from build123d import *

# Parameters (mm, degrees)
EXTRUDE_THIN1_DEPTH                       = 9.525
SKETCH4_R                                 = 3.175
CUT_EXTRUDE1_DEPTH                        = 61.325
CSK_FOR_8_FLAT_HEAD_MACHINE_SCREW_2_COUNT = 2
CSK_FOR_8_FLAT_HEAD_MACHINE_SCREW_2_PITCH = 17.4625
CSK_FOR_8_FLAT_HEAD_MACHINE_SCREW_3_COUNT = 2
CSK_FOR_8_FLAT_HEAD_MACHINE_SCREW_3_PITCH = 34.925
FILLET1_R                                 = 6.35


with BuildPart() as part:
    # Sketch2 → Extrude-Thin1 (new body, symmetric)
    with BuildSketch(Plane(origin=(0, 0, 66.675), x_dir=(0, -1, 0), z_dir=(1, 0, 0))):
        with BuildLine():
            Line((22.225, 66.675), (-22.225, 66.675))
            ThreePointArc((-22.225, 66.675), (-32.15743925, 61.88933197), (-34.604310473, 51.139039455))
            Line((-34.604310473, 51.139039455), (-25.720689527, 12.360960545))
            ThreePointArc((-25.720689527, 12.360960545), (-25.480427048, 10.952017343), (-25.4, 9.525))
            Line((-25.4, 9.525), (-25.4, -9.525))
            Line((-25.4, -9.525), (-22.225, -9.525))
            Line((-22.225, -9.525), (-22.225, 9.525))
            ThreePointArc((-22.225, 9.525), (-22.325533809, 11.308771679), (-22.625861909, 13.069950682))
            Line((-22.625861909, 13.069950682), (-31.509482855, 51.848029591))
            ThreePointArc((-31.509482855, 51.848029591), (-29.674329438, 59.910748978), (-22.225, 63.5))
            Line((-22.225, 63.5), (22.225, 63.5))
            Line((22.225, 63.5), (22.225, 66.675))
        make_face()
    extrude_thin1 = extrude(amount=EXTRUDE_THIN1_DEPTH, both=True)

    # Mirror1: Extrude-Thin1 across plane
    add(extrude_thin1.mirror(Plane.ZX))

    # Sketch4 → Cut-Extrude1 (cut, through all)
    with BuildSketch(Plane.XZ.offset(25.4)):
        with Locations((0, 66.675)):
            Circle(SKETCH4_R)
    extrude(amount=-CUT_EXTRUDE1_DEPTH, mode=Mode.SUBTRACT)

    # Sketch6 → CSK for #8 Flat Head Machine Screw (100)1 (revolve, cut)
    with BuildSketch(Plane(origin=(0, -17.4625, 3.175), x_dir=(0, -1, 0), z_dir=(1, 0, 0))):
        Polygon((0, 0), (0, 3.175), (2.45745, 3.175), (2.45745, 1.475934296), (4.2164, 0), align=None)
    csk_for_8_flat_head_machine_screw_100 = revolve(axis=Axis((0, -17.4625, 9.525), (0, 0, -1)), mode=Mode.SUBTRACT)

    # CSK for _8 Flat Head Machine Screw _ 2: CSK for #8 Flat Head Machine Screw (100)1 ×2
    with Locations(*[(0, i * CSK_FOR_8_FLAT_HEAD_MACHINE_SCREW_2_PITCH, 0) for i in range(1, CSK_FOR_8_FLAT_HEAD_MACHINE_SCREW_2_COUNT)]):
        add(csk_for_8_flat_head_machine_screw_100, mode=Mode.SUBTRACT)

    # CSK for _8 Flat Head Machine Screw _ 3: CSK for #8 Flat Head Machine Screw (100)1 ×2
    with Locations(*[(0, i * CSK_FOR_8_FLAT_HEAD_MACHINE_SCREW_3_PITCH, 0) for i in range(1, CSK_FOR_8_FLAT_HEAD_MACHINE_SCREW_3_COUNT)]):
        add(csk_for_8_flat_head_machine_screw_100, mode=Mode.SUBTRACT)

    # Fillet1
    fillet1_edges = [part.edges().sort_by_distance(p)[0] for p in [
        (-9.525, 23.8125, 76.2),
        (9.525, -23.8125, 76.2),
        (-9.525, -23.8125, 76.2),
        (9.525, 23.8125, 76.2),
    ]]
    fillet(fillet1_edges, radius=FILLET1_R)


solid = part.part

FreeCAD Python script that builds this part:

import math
import FreeCAD as App
import Part
import Sketcher
Q = App.Units.Quantity


def edges_at(feature, points):
    """Names of the edges that pass closest to the given points."""
    edges = feature.Shape.Edges
    near = lambda p: min(range(len(edges)), key=lambda i: edges[i].distToShape(Part.Vertex(*p))[0])
    return sorted({f"Edge{near(p) + 1}" for p in points})

doc = App.newDocument("Part")
body = doc.addObject("PartDesign::Body", "Body")

# Sketch on YZ plane
sketch1 = doc.addObject("Sketcher::SketchObject", "Sketch")
body.addObject(sketch1)
sketch1.AttachmentSupport = (doc.YZ_Plane, [""])
sketch1.MapMode = "FlatFace"
sketch1.addGeometry([
    Part.LineSegment(App.Vector(-22.2, 0, 0), App.Vector(22.2, 0, 0)),  # 0
    Part.ArcOfCircle(Part.Circle(App.Vector(22.2, 12.7, 0), App.Vector(0, 0, 1), 12.7), math.radians(-90), math.radians(13)),  # 1
    Part.LineSegment(App.Vector(34.6, 15.5, 0), App.Vector(25.7, 54.3, 0)),  # 2
    Part.ArcOfCircle(Part.Circle(App.Vector(38.1, 57.2, 0), App.Vector(0, 0, 1), 12.7), math.radians(-180), math.radians(-167.1)),  # 3
    Part.LineSegment(App.Vector(25.4, 57.1, 0), App.Vector(25.4, 76.2, 0)),  # 4
    Part.LineSegment(App.Vector(25.4, 76.2, 0), App.Vector(22.2, 76.2, 0)),  # 5
    Part.LineSegment(App.Vector(22.2, 76.2, 0), App.Vector(22.2, 57.1, 0)),  # 6
    Part.ArcOfCircle(Part.Circle(App.Vector(38.1, 57.1, 0), App.Vector(0, 0, 1), 15.9), math.radians(180), math.radians(192.9)),  # 7
    Part.LineSegment(App.Vector(22.6, 53.6, 0), App.Vector(31.5, 14.8, 0)),  # 8
    Part.ArcOfCircle(Part.Circle(App.Vector(22.2, 12.7, 0), App.Vector(0, 0, 1), 9.5), math.radians(-90), math.radians(13)),  # 9
    Part.LineSegment(App.Vector(22.2, 3.2, 0), App.Vector(-22.2, 3.2, 0)),  # 10
    Part.LineSegment(App.Vector(-22.2, 3.2, 0), App.Vector(-22.2, 0, 0)),  # 11
], False)
sketch1.addConstraint([
    Sketcher.Constraint("Tangent", 0, 2, 1, 1),
    Sketcher.Constraint("Tangent", 1, 2, 2, 1),
    Sketcher.Constraint("Tangent", 2, 2, 3, 2),
    Sketcher.Constraint("Tangent", 3, 1, 4, 1),
    Sketcher.Constraint("Coincident", 4, 2, 5, 1),
    Sketcher.Constraint("Coincident", 5, 2, 6, 1),
    Sketcher.Constraint("Tangent", 6, 2, 7, 1),
    Sketcher.Constraint("Tangent", 7, 2, 8, 1),
    Sketcher.Constraint("Tangent", 8, 2, 9, 2),
    Sketcher.Constraint("Tangent", 9, 1, 10, 1),
    Sketcher.Constraint("Coincident", 10, 2, 11, 1),
    Sketcher.Constraint("Coincident", 11, 2, 0, 1),
    Sketcher.Constraint("Horizontal", 0),
    Sketcher.Constraint("Vertical", 4),
    Sketcher.Constraint("Horizontal", 5),
    Sketcher.Constraint("Vertical", 6),
    Sketcher.Constraint("Horizontal", 10),
    Sketcher.Constraint("Vertical", 11),
    Sketcher.Constraint("Coincident", 7, 3, 3, 3),
    Sketcher.Constraint("Coincident", 9, 3, 1, 3),
    Sketcher.Constraint("Equal", 1, 3),
    Sketcher.Constraint("Symmetric", 0, 2, 11, 2, -1, 1),
    Sketcher.Constraint("Parallel", 2, 8),
    Sketcher.Constraint("Vertical", 0, 2, 5, 2),
    Sketcher.Constraint("Radius", 1, Q("0.5 in")),
    Sketcher.Constraint("DistanceX", -1, 1, 3, 1, Q("1 in")),
    Sketcher.Constraint("DistanceY", -1, 1, 4, 2, Q("3 in")),
    Sketcher.Constraint("Radius", 7, Q("0.625 in")),
    Sketcher.Constraint("DistanceY", 4, 1, 4, 2, Q("0.75 in")),
])
pad1 = doc.addObject("PartDesign::Pad", "Pad")
body.addObject(pad1)
pad1.Profile = sketch1
pad1.Length = Q("0.75 in")
pad1.Midplane = True
doc.recompute()

mirrored = doc.addObject("PartDesign::Mirrored", "Mirrored")
body.addObject(mirrored)
mirrored.Originals = [pad1]
mirrored.MirrorPlane = (doc.XZ_Plane, [""])
body.Tip = mirrored

# Sketch on XZ plane
sketch2 = doc.addObject("Sketcher::SketchObject", "Sketch001")
body.addObject(sketch2)
sketch2.AttachmentSupport = (doc.XZ_Plane, [""])
sketch2.MapMode = "FlatFace"
sketch2.AttachmentOffset = App.Placement(App.Vector(0, 0, 1 * 25.4), App.Rotation())
sketch2.addGeometry(Part.Circle(App.Vector(0, 66.7, 0), App.Vector(0, 0, 1), 3.2), False)
sketch2.addConstraint([
    Sketcher.Constraint("PointOnObject", 0, 3, -2),
    Sketcher.Constraint("Diameter", 0, Q("0.25 in")),
    Sketcher.Constraint("DistanceY", -1, 1, 0, 3, Q("2.625 in")),
])
pocket1 = doc.addObject("PartDesign::Pocket", "Pocket")
body.addObject(pocket1)
pocket1.Profile = sketch2
pocket1.Type = "ThroughAll"

# Sketch on YZ plane
sketch3 = doc.addObject("Sketcher::SketchObject", "Sketch002")
body.addObject(sketch3)
sketch3.AttachmentSupport = (doc.YZ_Plane, [""])
sketch3.MapMode = "FlatFace"
sketch3.addGeometry([
    Part.LineSegment(App.Vector(-17.5, 0, 0), App.Vector(-17.5, 3.2, 0)),  # 0
    Part.LineSegment(App.Vector(-17.5, 3.2, 0), App.Vector(-21.7, 3.2, 0)),  # 1
    Part.LineSegment(App.Vector(-21.7, 3.2, 0), App.Vector(-19.9, 1.7, 0)),  # 2
    Part.LineSegment(App.Vector(-19.9, 1.7, 0), App.Vector(-19.9, 0, 0)),  # 3
    Part.LineSegment(App.Vector(-19.9, 0, 0), App.Vector(-17.5, 0, 0)),  # 4
], False)
sketch3.addGeometry(Part.LineSegment(App.Vector(-17.5, 3.2, 0), App.Vector(-17.5, 0, 0)), True)  # axis
sketch3.addConstraint([
    Sketcher.Constraint("Coincident", 0, 2, 1, 1),
    Sketcher.Constraint("Coincident", 1, 2, 2, 1),
    Sketcher.Constraint("Coincident", 2, 2, 3, 1),
    Sketcher.Constraint("Coincident", 3, 2, 4, 1),
    Sketcher.Constraint("Coincident", 4, 2, 0, 1),
    Sketcher.Constraint("Vertical", 0),
    Sketcher.Constraint("Horizontal", 1),
    Sketcher.Constraint("Vertical", 3),
    Sketcher.Constraint("Horizontal", 4),
    Sketcher.Constraint("Vertical", 5),
    Sketcher.Constraint("Coincident", 5, 1, 0, 2),
    Sketcher.Constraint("PointOnObject", 3, 2, -1),
    Sketcher.Constraint("PointOnObject", 5, 2, -1),
    Sketcher.Constraint("Angle", 2, Q("-40 deg")),
    Sketcher.Constraint("DistanceX", 1, 2, 1, 1, Q("0.166 in")),
    Sketcher.Constraint("DistanceY", 0, 1, 0, 2, Q("0.125 in")),
    Sketcher.Constraint("DistanceX", 0, 2, -1, 1, Q("0.6875 in")),
    Sketcher.Constraint("DistanceX", 4, 1, 4, 2, Q("2.45745 mm")),
])
groove = doc.addObject("PartDesign::Groove", "Groove")
body.addObject(groove)
groove.Profile = sketch3
groove.ReferenceAxis = (sketch3, ["Axis0"])
groove.Angle = 360
doc.recompute()

linearpattern = doc.addObject("PartDesign::LinearPattern", "LinearPattern")
body.addObject(linearpattern)
linearpattern.Originals = [groove]
linearpattern.Direction = (doc.Y_Axis, [""])
linearpattern.Mode = "offset"
linearpattern.Offset = Q("0.6875 in")
linearpattern.Occurrences = 2
body.Tip = linearpattern
doc.recompute()

linearpattern2 = doc.addObject("PartDesign::LinearPattern", "LinearPattern001")
body.addObject(linearpattern2)
linearpattern2.Originals = [groove]
linearpattern2.Direction = (doc.Y_Axis, [""])
linearpattern2.Mode = "offset"
linearpattern2.Offset = Q("1.375 in")
linearpattern2.Occurrences = 2
body.Tip = linearpattern2
doc.recompute()

fillet = doc.addObject("PartDesign::Fillet", "Fillet")
body.addObject(fillet)
fillet.Base = (linearpattern2, edges_at(linearpattern2, [
    (-9.525, 23.812, 76.2),
    (9.525, -23.812, 76.2),
    (-9.525, -23.812, 76.2),
    (9.525, 23.812, 76.2),
]))
fillet.Radius = Q("0.25 in")

doc.recompute()
